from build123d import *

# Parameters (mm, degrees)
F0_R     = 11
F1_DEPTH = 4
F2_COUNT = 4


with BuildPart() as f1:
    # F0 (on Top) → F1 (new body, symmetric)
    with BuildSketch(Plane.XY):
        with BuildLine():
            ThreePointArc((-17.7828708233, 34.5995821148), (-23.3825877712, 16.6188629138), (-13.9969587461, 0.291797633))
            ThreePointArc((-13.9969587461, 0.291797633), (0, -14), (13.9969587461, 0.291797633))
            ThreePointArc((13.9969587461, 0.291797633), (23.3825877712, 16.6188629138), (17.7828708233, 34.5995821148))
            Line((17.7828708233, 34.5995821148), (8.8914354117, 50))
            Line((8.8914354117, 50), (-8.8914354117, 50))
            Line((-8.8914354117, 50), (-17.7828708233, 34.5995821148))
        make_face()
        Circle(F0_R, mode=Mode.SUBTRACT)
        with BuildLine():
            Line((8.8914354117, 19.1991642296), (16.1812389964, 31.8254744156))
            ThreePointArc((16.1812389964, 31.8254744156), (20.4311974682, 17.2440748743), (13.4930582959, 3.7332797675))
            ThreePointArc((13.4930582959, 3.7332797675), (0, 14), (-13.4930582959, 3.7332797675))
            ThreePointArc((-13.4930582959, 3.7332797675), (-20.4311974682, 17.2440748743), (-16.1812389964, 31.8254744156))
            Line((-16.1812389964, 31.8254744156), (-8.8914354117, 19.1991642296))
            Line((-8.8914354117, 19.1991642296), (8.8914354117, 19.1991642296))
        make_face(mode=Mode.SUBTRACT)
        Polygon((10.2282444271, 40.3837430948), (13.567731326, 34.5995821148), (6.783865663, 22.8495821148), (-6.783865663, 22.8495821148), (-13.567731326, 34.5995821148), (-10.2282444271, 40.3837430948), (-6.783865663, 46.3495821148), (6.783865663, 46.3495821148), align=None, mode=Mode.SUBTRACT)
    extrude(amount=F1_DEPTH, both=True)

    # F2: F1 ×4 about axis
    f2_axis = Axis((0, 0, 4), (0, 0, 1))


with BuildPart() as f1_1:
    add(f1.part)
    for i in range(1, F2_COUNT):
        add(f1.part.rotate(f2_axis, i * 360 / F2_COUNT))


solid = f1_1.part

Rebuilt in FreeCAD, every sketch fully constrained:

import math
import FreeCAD as App
import Part
import Sketcher

V = App.Vector
Q = App.Units.Quantity

doc = App.newDocument("Part")
params = doc.addObject("Spreadsheet::Sheet", "Params")
for row, (alias, value) in enumerate([
    ("sketch1_diameter", "22 mm"),
    ("sketch1_radius", "14 mm"),
    ("pad1_length", "8 mm"),
], start=1):
    params.set(f"A{row}", alias)
    params.set(f"B{row}", "=" + value)
    params.setAlias(f"B{row}", alias)

body = doc.addObject("PartDesign::Body", "Body")

sketch1 = body.newObject("Sketcher::SketchObject", "Sketch")
sketch1.AttachmentSupport = (doc.getObject("XY_Plane"), [""])
sketch1.MapMode = "FlatFace"
sketch1.addGeometry(Part.ArcOfCircle(Part.Circle(V(0, 19, 0), V(0, 0, 1), 24), math.radians(139), math.radians(233)), False)
sketch1.addGeometry(Part.ArcOfCircle(Part.Circle(V(0, 0, 0), V(0, 0, 1), 14), math.radians(179), math.radians(361)), False)
sketch1.addGeometry(Part.ArcOfCircle(Part.Circle(V(0, 19, 0), V(0, 0, 1), 24), math.radians(-53), math.radians(41)), False)
sketch1.addGeometry(Part.LineSegment(V(18, 35, 0), V(9, 50, 0)), False)
sketch1.addGeometry(Part.LineSegment(V(9, 50, 0), V(-9, 50, 0)), False)
sketch1.addGeometry(Part.LineSegment(V(-9, 50, 0), V(-18, 35, 0)), False)
sketch1.addGeometry(Part.Circle(V(0, 0, 0), V(0, 0, 1), 11), False)
sketch1.addGeometry(Part.LineSegment(V(-9, 19, 0), V(9, 19, 0)), False)
sketch1.addGeometry(Part.LineSegment(V(9, 19, 0), V(16, 32, 0)), False)
sketch1.addGeometry(Part.ArcOfCircle(Part.Circle(V(0, 19, 0), V(0, 0, 1), 21), math.radians(-49), math.radians(38)), False)
sketch1.addGeometry(Part.ArcOfCircle(Part.Circle(V(0, 0, 0), V(0, 0, 1), 14), math.radians(15), math.radians(165)), False)
sketch1.addGeometry(Part.ArcOfCircle(Part.Circle(V(0, 19, 0), V(0, 0, 1), 21), math.radians(142), math.radians(229)), False)
sketch1.addGeometry(Part.LineSegment(V(-16, 32, 0), V(-9, 19, 0)), False)
sketch1.addGeometry(Part.LineSegment(V(7, 46, 0), V(10, 40, 0)), False)
sketch1.addGeometry(Part.LineSegment(V(10, 40, 0), V(14, 35, 0)), False)
sketch1.addGeometry(Part.LineSegment(V(14, 35, 0), V(7, 23, 0)), False)
sketch1.addGeometry(Part.LineSegment(V(7, 23, 0), V(-7, 23, 0)), False)
sketch1.addGeometry(Part.LineSegment(V(-7, 23, 0), V(-14, 35, 0)), False)
sketch1.addGeometry(Part.LineSegment(V(-14, 35, 0), V(-10, 40, 0)), False)
sketch1.addGeometry(Part.LineSegment(V(-10, 40, 0), V(-7, 46, 0)), False)
sketch1.addGeometry(Part.LineSegment(V(-7, 46, 0), V(7, 46, 0)), False)
sketch1.addConstraint(Sketcher.Constraint("Coincident", 0, 2, 1, 1))
sketch1.addConstraint(Sketcher.Constraint("Coincident", 1, 2, 2, 1))
sketch1.addConstraint(Sketcher.Constraint("Coincident", 2, 2, 3, 1))
sketch1.addConstraint(Sketcher.Constraint("Coincident", 3, 2, 4, 1))
sketch1.addConstraint(Sketcher.Constraint("Coincident", 4, 2, 5, 1))
sketch1.addConstraint(Sketcher.Constraint("Coincident", 5, 2, 0, 1))
sketch1.addConstraint(Sketcher.Constraint("Coincident", 7, 2, 8, 1))
sketch1.addConstraint(Sketcher.Constraint("Coincident", 8, 2, 9, 2))
sketch1.addConstraint(Sketcher.Constraint("Coincident", 9, 1, 10, 1))
sketch1.addConstraint(Sketcher.Constraint("Coincident", 10, 2, 11, 2))
sketch1.addConstraint(Sketcher.Constraint("Coincident", 11, 1, 12, 1))
sketch1.addConstraint(Sketcher.Constraint("Coincident", 12, 2, 7, 1))
sketch1.addConstraint(Sketcher.Constraint("Coincident", 13, 2, 14, 1))
sketch1.addConstraint(Sketcher.Constraint("Coincident", 14, 2, 15, 1))
sketch1.addConstraint(Sketcher.Constraint("Coincident", 15, 2, 16, 1))
sketch1.addConstraint(Sketcher.Constraint("Coincident", 16, 2, 17, 1))
sketch1.addConstraint(Sketcher.Constraint("Coincident", 17, 2, 18, 1))
sketch1.addConstraint(Sketcher.Constraint("Coincident", 18, 2, 19, 1))
sketch1.addConstraint(Sketcher.Constraint("Coincident", 19, 2, 20, 1))
sketch1.addConstraint(Sketcher.Constraint("Coincident", 20, 2, 13, 1))
sketch1.addConstraint(Sketcher.Constraint("Horizontal", 4))
sketch1.addConstraint(Sketcher.Constraint("Horizontal", 7))
sketch1.addConstraint(Sketcher.Constraint("Horizontal", 16))
sketch1.addConstraint(Sketcher.Constraint("Horizontal", 20))
sketch1.addConstraint(Sketcher.Constraint("Coincident", 1, 3, -1, 1))
sketch1.addConstraint(Sketcher.Constraint("Coincident", 6, 3, -1, 1))
sketch1.addConstraint(Sketcher.Constraint("Coincident", 10, 3, -1, 1))
sketch1.addConstraint(Sketcher.Constraint("Coincident", 2, 3, 0, 3))
sketch1.addConstraint(Sketcher.Constraint("Coincident", 9, 3, 0, 3))
sketch1.addConstraint(Sketcher.Constraint("Coincident", 11, 3, 0, 3))
sketch1.addConstraint(Sketcher.Constraint("Equal", 0, 2))
sketch1.addConstraint(Sketcher.Constraint("Equal", 1, 10))
sketch1.addConstraint(Sketcher.Constraint("Equal", 9, 11))
sketch1.addConstraint(Sketcher.Constraint("Symmetric", 2, 2, 5, 2, -2))
sketch1.addConstraint(Sketcher.Constraint("Symmetric", 14, 2, 17, 2, -2))
sketch1.addConstraint(Sketcher.Constraint("Symmetric", 13, 2, 18, 2, -2))
sketch1.addConstraint(Sketcher.Constraint("Parallel", 5, 8))
sketch1.addConstraint(Sketcher.Constraint("Parallel", 3, 12))
sketch1.addConstraint(Sketcher.Constraint("Parallel", 12, 13))
sketch1.addConstraint(Sketcher.Constraint("Parallel", 13, 14))
sketch1.addConstraint(Sketcher.Constraint("Parallel", 8, 15))
sketch1.addConstraint(Sketcher.Constraint("Parallel", 14, 17))
sketch1.addConstraint(Sketcher.Constraint("Parallel", 15, 18))
sketch1.addConstraint(Sketcher.Constraint("Parallel", 18, 19))
sketch1.addConstraint(Sketcher.Constraint("Horizontal", 11, 3, 7, 2))
sketch1.addConstraint(Sketcher.Constraint("Horizontal", 8, 2, 11, 1))
sketch1.addConstraint(Sketcher.Constraint("Horizontal", 5, 2, 14, 2))
sketch1.addConstraint(Sketcher.Constraint("Vertical", 3, 2, 7, 2))
sketch1.addConstraint(Sketcher.Constraint("Vertical", 16, 2, 19, 2))
sketch1.addConstraint(Sketcher.Constraint("Diameter", 6, 22.0))
sketch1.addConstraint(Sketcher.Constraint("Radius", 1, 14.0))
sketch1.addConstraint(Sketcher.Constraint("Angle", 3, Q("120 deg")))
sketch1.addConstraint(Sketcher.Constraint("DistanceY", -1, 1, 3, 2, 50.0))
sketch1.addConstraint(Sketcher.Constraint("DistanceY", 16, 2, 17, 2, 11.75))
sketch1.addConstraint(Sketcher.Constraint("Radius", 0, 23.524527))
sketch1.addConstraint(Sketcher.Constraint("Radius", 9, 20.524527))
sketch1.addConstraint(Sketcher.Constraint("DistanceX", 4, 2, 4, 1, 17.782871))
sketch1.addConstraint(Sketcher.Constraint("DistanceX", 16, 2, 16, 1, 13.567731))
sketch1.addConstraint(Sketcher.Constraint("Distance", 3, 17.782871))
sketch1.addConstraint(Sketcher.Constraint("DistanceY", 2, 2, 13, 2, 5.784161))
sketch1.setExpression("Constraints[49]", "Params.sketch1_diameter")
sketch1.setExpression("Constraints[50]", "Params.sketch1_radius")
pad1 = body.newObject("PartDesign::Pad", "Pad")
pad1.Profile = sketch1
pad1.setExpression("Length", "Params.pad1_length")
pad1.Midplane = True
body2 = doc.addObject("PartDesign::Body", "Body001")
doc.recompute()

body2.BaseFeature = body
doc.recompute()

body3 = doc.addObject("PartDesign::Body", "Body002")
body3.BaseFeature = body
body3.Placement = App.Placement(V(0, 0, 0), App.Rotation(V(0, 0, 1), 90))
boolean = body2.newObject("PartDesign::Boolean", "Boolean")
boolean.Type = "Fuse"
boolean.addObjects([body3])
doc.recompute()

body4 = doc.addObject("PartDesign::Body", "Body003")
body4.BaseFeature = body
body4.Placement = App.Placement(V(0, 0, 0), App.Rotation(V(0, 0, 1), 180))
boolean2 = body2.newObject("PartDesign::Boolean", "Boolean001")
boolean2.Type = "Fuse"
boolean2.addObjects([body4])
doc.recompute()

body.Placement = App.Placement(V(0, 0, 0), App.Rotation(V(0, 0, 1), 270))
boolean3 = body2.newObject("PartDesign::Boolean", "Boolean002")
boolean3.Type = "Fuse"
boolean3.addObjects([body])

doc.recompute()
